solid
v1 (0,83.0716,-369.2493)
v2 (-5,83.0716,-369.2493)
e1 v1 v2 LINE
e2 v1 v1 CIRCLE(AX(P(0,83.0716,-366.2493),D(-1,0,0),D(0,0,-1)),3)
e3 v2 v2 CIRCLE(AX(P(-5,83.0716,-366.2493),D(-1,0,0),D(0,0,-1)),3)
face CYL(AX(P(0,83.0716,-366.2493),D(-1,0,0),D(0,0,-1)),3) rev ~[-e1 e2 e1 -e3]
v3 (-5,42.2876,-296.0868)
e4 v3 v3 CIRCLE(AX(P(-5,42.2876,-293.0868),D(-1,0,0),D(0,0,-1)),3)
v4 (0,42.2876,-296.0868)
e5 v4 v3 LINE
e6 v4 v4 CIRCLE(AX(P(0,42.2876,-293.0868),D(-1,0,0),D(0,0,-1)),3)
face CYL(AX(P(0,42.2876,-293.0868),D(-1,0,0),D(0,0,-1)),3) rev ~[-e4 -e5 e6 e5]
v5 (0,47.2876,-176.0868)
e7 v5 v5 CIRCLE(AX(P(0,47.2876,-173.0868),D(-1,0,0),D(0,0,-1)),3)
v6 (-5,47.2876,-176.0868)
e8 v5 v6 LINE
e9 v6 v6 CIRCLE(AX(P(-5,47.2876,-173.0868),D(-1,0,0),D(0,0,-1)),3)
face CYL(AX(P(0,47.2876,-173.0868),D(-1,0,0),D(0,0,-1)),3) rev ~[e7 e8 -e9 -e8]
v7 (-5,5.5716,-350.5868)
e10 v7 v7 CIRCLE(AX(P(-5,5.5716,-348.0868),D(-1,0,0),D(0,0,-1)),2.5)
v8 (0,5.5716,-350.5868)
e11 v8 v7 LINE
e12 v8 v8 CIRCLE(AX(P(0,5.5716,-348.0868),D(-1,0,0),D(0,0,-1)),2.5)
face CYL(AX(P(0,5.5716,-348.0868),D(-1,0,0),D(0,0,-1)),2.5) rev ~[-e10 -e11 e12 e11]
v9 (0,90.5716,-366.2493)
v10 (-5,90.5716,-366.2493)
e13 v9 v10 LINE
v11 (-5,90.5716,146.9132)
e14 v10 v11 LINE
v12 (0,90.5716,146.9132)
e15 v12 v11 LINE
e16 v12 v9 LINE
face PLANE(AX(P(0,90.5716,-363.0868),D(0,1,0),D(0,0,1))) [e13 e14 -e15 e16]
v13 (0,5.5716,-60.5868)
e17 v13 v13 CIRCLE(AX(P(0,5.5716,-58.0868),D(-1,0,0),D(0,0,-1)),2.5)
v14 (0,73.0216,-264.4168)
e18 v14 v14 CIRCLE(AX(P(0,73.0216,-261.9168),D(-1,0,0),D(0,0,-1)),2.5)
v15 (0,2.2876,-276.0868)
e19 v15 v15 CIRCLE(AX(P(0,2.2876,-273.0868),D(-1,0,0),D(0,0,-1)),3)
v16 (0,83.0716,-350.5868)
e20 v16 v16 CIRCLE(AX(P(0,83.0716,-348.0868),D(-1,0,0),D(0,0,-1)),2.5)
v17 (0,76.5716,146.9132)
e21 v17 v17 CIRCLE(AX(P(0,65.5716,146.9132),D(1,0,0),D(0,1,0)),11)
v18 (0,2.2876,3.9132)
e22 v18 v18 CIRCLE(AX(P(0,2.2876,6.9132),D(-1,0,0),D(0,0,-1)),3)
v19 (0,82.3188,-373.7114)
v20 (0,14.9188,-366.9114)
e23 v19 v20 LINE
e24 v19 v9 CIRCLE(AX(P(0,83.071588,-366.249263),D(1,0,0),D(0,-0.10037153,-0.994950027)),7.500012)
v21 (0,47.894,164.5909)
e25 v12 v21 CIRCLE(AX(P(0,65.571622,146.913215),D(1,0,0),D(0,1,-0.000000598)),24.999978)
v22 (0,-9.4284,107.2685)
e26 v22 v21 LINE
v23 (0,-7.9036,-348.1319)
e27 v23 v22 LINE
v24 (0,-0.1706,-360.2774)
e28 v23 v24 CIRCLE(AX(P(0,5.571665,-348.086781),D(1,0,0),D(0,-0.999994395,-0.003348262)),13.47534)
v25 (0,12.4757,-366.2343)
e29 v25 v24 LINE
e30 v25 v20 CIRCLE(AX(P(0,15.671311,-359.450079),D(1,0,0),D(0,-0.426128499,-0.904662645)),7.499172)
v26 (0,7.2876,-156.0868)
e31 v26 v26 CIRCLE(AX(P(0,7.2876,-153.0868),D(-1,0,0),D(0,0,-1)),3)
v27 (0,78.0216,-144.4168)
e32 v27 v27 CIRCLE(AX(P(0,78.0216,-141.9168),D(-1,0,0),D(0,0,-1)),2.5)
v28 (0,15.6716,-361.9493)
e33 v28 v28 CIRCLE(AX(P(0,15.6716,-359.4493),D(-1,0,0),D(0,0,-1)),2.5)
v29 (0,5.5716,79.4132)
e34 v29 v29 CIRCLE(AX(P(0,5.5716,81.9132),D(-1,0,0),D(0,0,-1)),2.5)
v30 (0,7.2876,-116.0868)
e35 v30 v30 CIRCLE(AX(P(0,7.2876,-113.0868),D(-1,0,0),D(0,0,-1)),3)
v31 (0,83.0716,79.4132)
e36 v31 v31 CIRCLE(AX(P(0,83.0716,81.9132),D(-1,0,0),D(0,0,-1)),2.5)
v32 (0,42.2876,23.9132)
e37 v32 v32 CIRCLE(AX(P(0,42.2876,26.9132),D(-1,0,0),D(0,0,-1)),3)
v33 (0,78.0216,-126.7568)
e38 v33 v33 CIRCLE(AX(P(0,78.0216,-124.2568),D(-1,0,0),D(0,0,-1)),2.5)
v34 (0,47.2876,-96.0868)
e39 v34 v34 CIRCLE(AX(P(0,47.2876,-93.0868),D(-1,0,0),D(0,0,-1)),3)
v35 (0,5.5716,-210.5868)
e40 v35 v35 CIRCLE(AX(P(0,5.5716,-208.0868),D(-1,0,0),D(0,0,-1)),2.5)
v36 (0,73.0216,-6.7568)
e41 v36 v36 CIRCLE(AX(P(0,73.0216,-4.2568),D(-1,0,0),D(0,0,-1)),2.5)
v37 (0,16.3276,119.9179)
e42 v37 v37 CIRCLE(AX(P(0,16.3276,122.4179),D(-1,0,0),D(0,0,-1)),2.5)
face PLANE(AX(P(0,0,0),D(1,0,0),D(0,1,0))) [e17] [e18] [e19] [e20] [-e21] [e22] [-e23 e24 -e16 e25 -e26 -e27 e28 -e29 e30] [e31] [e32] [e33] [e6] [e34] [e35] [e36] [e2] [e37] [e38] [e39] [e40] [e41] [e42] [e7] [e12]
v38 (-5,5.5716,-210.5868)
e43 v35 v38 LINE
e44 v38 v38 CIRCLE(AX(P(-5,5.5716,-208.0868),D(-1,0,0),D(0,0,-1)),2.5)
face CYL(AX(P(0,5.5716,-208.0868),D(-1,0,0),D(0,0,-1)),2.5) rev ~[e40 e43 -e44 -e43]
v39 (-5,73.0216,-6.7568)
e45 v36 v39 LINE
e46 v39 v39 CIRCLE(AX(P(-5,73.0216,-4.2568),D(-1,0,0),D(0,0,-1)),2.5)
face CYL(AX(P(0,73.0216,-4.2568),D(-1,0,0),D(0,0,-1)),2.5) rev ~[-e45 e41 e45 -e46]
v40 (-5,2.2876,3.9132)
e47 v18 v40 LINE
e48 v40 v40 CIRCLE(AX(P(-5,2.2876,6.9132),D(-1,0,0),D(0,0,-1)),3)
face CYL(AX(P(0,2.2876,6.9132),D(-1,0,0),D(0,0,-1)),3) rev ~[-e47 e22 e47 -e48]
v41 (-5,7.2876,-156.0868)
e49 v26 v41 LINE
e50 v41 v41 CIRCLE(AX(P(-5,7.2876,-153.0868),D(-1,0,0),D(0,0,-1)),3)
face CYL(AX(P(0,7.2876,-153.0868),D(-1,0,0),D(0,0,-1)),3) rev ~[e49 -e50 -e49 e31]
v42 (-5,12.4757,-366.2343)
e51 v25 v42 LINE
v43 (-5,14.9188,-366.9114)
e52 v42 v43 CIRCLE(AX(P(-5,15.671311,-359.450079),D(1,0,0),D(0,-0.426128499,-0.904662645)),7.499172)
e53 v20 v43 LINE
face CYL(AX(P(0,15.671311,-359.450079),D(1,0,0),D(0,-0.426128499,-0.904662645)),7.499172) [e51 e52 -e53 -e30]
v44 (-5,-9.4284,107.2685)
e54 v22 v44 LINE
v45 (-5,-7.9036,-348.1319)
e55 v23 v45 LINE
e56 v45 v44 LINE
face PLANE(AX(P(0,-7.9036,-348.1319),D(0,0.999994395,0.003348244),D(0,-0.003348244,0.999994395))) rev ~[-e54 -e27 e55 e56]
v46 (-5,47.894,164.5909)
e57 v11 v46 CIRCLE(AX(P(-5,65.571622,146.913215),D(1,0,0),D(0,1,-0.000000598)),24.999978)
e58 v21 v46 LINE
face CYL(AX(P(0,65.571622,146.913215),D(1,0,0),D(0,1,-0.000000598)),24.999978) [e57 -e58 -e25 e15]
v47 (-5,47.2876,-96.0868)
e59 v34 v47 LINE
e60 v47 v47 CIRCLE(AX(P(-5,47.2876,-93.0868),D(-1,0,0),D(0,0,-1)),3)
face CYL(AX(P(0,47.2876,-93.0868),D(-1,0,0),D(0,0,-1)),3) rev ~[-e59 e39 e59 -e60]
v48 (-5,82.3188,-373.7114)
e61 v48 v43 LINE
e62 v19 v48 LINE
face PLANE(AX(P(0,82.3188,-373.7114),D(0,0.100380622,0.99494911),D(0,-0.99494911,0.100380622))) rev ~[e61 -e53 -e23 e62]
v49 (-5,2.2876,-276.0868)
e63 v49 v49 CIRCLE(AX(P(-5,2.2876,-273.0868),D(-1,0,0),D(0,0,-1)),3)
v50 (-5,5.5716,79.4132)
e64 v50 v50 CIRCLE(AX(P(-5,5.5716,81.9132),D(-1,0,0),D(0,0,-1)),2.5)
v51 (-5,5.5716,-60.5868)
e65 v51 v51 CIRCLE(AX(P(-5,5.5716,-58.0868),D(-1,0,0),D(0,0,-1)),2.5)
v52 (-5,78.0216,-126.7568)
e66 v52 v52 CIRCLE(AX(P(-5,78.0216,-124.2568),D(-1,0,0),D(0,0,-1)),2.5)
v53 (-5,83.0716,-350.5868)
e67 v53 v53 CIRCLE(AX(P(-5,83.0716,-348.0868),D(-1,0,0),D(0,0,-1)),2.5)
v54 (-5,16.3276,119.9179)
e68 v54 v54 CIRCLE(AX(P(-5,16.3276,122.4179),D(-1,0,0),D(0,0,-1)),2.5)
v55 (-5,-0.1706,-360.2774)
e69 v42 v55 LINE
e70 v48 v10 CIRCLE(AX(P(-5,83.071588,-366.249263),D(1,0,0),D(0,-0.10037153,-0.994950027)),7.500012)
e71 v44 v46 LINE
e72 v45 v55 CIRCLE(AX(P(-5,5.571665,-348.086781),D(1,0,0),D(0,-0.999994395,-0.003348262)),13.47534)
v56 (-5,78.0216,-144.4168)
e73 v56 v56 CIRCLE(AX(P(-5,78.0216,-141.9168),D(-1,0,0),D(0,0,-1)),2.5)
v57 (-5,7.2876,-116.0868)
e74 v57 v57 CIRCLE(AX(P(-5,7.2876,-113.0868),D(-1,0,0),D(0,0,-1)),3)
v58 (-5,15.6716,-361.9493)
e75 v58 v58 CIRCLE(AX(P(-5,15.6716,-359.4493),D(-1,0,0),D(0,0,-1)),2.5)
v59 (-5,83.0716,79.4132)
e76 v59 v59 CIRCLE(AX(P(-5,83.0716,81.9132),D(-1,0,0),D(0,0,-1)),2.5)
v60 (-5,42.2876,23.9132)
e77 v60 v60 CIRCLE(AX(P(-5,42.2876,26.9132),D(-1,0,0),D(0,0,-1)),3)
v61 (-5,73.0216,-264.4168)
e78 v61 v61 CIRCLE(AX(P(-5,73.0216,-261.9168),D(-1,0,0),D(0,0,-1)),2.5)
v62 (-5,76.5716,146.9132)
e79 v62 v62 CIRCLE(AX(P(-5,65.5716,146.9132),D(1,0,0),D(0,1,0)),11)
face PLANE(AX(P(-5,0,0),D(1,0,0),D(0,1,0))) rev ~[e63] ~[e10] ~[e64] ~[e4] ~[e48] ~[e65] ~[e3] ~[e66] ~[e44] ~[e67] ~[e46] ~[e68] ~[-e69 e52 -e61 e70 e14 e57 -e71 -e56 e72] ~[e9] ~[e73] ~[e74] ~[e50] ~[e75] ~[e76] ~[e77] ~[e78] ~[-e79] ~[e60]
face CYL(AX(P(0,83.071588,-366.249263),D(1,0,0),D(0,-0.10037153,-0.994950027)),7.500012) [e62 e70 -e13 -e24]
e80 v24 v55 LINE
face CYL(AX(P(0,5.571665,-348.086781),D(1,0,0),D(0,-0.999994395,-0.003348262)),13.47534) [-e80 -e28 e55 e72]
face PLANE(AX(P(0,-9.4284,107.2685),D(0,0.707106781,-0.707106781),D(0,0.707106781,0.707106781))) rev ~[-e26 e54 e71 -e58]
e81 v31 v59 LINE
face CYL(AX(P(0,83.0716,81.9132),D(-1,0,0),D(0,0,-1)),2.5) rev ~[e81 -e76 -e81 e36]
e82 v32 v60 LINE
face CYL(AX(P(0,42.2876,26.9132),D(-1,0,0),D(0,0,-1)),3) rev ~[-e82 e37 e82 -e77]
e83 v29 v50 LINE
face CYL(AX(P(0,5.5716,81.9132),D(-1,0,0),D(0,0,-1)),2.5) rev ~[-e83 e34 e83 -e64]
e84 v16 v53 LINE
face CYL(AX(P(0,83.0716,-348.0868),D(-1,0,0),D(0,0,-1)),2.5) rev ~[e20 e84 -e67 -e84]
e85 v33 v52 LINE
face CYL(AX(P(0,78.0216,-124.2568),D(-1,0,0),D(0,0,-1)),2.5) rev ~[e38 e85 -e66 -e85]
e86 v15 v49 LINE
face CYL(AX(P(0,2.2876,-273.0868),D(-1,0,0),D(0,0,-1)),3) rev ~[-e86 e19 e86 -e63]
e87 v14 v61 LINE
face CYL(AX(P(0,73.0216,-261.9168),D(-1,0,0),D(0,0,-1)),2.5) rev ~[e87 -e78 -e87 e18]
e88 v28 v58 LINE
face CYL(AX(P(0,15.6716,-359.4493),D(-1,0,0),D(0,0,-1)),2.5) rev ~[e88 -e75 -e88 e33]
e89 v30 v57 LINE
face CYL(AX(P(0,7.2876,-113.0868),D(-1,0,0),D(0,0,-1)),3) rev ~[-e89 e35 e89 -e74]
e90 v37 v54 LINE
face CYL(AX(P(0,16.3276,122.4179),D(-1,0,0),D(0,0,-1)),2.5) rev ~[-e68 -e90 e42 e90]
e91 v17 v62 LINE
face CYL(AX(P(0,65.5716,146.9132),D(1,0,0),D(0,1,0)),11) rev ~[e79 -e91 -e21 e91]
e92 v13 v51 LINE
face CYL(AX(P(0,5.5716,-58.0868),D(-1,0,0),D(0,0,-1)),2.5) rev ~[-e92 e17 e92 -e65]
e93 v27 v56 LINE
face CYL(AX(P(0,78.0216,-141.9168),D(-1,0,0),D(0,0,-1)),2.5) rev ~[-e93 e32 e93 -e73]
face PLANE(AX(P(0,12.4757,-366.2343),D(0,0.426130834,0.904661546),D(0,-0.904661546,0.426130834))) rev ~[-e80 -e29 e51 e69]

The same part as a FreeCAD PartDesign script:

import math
import FreeCAD as App
import Part
import Sketcher

V = App.Vector
Q = App.Units.Quantity

doc = App.newDocument("Part")
body = doc.addObject("PartDesign::Body", "Body")

# Sketch on YZ plane
sketch1 = body.newObject("Sketcher::SketchObject", "Sketch")
sketch1.AttachmentSupport = (doc.getObject("YZ_Plane"), [""])
sketch1.MapMode = "FlatFace"
sketch1.addGeometry([
    Part.LineSegment(V(90.6, -366.2, 0), V(90.6, 146.9, 0)),  # 0
    Part.ArcOfCircle(Part.Circle(V(65.6, 146.9, 0), V(0, 0, 1), 25), math.radians(0), math.radians(135)),  # 1
    Part.LineSegment(V(47.9, 164.6, 0), V(-9.4, 107.3, 0)),  # 2
    Part.LineSegment(V(-9.4, 107.3, 0), V(-7.9, -348.1, 0)),  # 3
    Part.ArcOfCircle(Part.Circle(V(5.6, -348.1, 0), V(0, 0, 1), 13.5), math.radians(-180), math.radians(-115)),  # 4
    Part.LineSegment(V(-0.2, -360.3, 0), V(12.5, -366.2, 0)),  # 5
    Part.ArcOfCircle(Part.Circle(V(15.7, -359.4, 0), V(0, 0, 1), 7.5), math.radians(-115.22), math.radians(-95.76)),  # 6
    Part.LineSegment(V(14.9, -366.9, 0), V(82.3, -373.7, 0)),  # 7
    Part.ArcOfCircle(Part.Circle(V(83.1, -366.2, 0), V(0, 0, 1), 7.5), math.radians(-96), math.radians(0)),  # 8
    Part.Circle(V(65.6, 146.9, 0), V(0, 0, 1), 11),  # 9
], False)
sketch1.addConstraint([
    Sketcher.Constraint("Tangent", 0, 2, 1, 1),
    Sketcher.Constraint("Tangent", 1, 2, 2, 1),
    Sketcher.Constraint("Coincident", 2, 2, 3, 1),
    Sketcher.Constraint("Tangent", 3, 2, 4, 1),
    Sketcher.Constraint("Tangent", 4, 2, 5, 1),
    Sketcher.Constraint("Tangent", 5, 2, 6, 1),
    Sketcher.Constraint("Tangent", 6, 2, 7, 1),
    Sketcher.Constraint("Tangent", 7, 2, 8, 1),
    Sketcher.Constraint("Tangent", 8, 2, 0, 1),
    Sketcher.Constraint("Vertical", 0),
    Sketcher.Constraint("Coincident", 9, 3, 1, 3),
    Sketcher.Constraint("Equal", 6, 8),
    Sketcher.Constraint("Diameter", 9, Q("22 mm")),
    Sketcher.Constraint("Radius", 1, Q("25 mm")),
    Sketcher.Constraint("Radius", 6, Q("7.5 mm")),
    Sketcher.Constraint("DistanceX", 4, 3, 1, 3, Q("60 mm")),
    Sketcher.Constraint("DistanceX", 2, 2, 4, 3, Q("15 mm")),
    Sketcher.Constraint("DistanceX", 6, 3, 8, 3, Q("67.4 mm")),
    Sketcher.Constraint("DistanceY", 8, 3, 6, 3, Q("6.8 mm")),
    Sketcher.Constraint("Angle", 2, Q("-135 deg")),
    Sketcher.Constraint("DistanceY", 4, 3, 1, 3, Q("495 mm")),
    Sketcher.Constraint("Radius", 4, Q("13.4753 mm")),
    Sketcher.Constraint("Distance", 5, Q("13.979 mm")),
    Sketcher.Constraint("DistanceX", -1, 1, 1, 2, Q("47.894 mm")),
    Sketcher.Constraint("DistanceY", -1, 1, 1, 2, Q("164.591 mm")),
])
pad1 = body.newObject("PartDesign::Pad", "Pad")
pad1.Profile = sketch1
pad1.Length = 5
pad1.Reversed = True

# Sketch on YZ plane
sketch2 = body.newObject("Sketcher::SketchObject", "Sketch001")
sketch2.AttachmentSupport = (doc.getObject("YZ_Plane"), [""])
sketch2.MapMode = "FlatFace"
sketch2.addGeometry([
    Part.Circle(V(83.1, 81.9, 0), V(0, 0, 1), 2.5),  # 0
    Part.Circle(V(16.3, 122.4, 0), V(0, 0, 1), 2.5),  # 1
    Part.Circle(V(5.6, -348.1, 0), V(0, 0, 1), 2.5),  # 2
    Part.Circle(V(83.1, -348.1, 0), V(0, 0, 1), 2.5),  # 3
    Part.Circle(V(-17.7, -58.1, 0), V(0, 0, 1), 2.5),  # 4
    Part.Circle(V(-17.7, -208.1, 0), V(0, 0, 1), 2.5),  # 5
    Part.Circle(V(5.6, 81.9, 0), V(0, 0, 1), 2.5),  # 6
    Part.Circle(V(5.6, -58.1, 0), V(0, 0, 1), 2.5),  # 7
    Part.Circle(V(5.6, -208.1, 0), V(0, 0, 1), 2.5),  # 8
], False)
sketch2.addConstraint([
    Sketcher.Constraint("Equal", 0, 1),
    Sketcher.Constraint("Equal", 1, 2),
    Sketcher.Constraint("Equal", 2, 3),
    Sketcher.Constraint("Equal", 3, 4),
    Sketcher.Constraint("Equal", 4, 5),
    Sketcher.Constraint("Equal", 5, 6),
    Sketcher.Constraint("Equal", 6, 7),
    Sketcher.Constraint("Equal", 7, 8),
    Sketcher.Constraint("Horizontal", 2, 3, 3, 3),
    Sketcher.Constraint("Horizontal", 0, 3, 6, 3),
    Sketcher.Constraint("Horizontal", 4, 3, 7, 3),
    Sketcher.Constraint("Horizontal", 5, 3, 8, 3),
    Sketcher.Constraint("Vertical", 0, 3, 3, 3),
    Sketcher.Constraint("Vertical", 4, 3, 5, 3),
    Sketcher.Constraint("Vertical", 2, 3, 6, 3),
    Sketcher.Constraint("Vertical", 6, 3, 7, 3),
    Sketcher.Constraint("Vertical", 7, 3, 8, 3),
    Sketcher.Constraint("Diameter", 0, Q("5 mm")),
    Sketcher.Constraint("DistanceY", 2, 3, 0, 3, Q("430 mm")),
    Sketcher.Constraint("DistanceY", 4, 3, 0, 3, Q("140 mm")),
    Sketcher.Constraint("DistanceY", 2, 3, 5, 3, Q("140 mm")),
    Sketcher.Constraint("DistanceX", 2, 3, 0, 3, Q("77.5 mm")),
    Sketcher.Constraint("DistanceY", -1, 1, 1, 3, Q("122.418 mm")),
    Sketcher.Constraint("DistanceX", 1, 3, 0, 3, Q("66.744 mm")),
    Sketcher.Constraint("DistanceX", -1, 1, 0, 3, Q("83.0716 mm")),
    Sketcher.Constraint("DistanceY", -1, 1, 0, 3, Q("81.9132 mm")),
    Sketcher.Constraint("DistanceX", 4, 3, -1, 1, Q("17.7126 mm")),
])
doc.recompute()
hole = body.newObject("PartDesign::Hole", "Hole")
hole.Profile = sketch2
hole.ThreadType = "None"
hole.Diameter = 5
hole.DepthType = "ThroughAll"

# Sketch on YZ plane
sketch3 = body.newObject("Sketcher::SketchObject", "Sketch002")
sketch3.AttachmentSupport = (doc.getObject("YZ_Plane"), [""])
sketch3.MapMode = "FlatFace"
sketch3.addGeometry([
    Part.Circle(V(2.3, 6.9, 0), V(0, 0, 1), 3),  # 0
    Part.Circle(V(42.3, 26.9, 0), V(0, 0, 1), 3),  # 1
    Part.Circle(V(7.3, -113.1, 0), V(0, 0, 1), 3),  # 2
    Part.Circle(V(47.3, -93.1, 0), V(0, 0, 1), 3),  # 3
    Part.Circle(V(7.3, -153.1, 0), V(0, 0, 1), 3),  # 4
    Part.Circle(V(47.3, -173.1, 0), V(0, 0, 1), 3),  # 5
    Part.Circle(V(2.3, -273.1, 0), V(0, 0, 1), 3),  # 6
    Part.Circle(V(42.3, -293.1, 0), V(0, 0, 1), 3),  # 7
    Part.Circle(V(83.1, -366.2, 0), V(0, 0, 1), 3),  # 8
], False)
sketch3.addConstraint([
    Sketcher.Constraint("Equal", 0, 1),
    Sketcher.Constraint("Equal", 1, 2),
    Sketcher.Constraint("Equal", 2, 3),
    Sketcher.Constraint("Equal", 3, 4),
    Sketcher.Constraint("Equal", 4, 5),
    Sketcher.Constraint("Equal", 5, 6),
    Sketcher.Constraint("Equal", 6, 7),
    Sketcher.Constraint("Equal", 7, 8),
    Sketcher.Constraint("Vertical", 2, 3, 4, 3),
    Sketcher.Constraint("Vertical", 3, 3, 5, 3),
    Sketcher.Constraint("Vertical", 0, 3, 6, 3),
    Sketcher.Constraint("Vertical", 1, 3, 7, 3),
    Sketcher.Constraint("Diameter", 0, Q("6 mm")),
    Sketcher.Constraint("DistanceX", 0, 3, 1, 3, Q("40 mm")),
    Sketcher.Constraint("DistanceY", 0, 3, 1, 3, Q("20 mm")),
    Sketcher.Constraint("DistanceX", 0, 3, 2, 3, Q("5 mm")),
    Sketcher.Constraint("DistanceY", 2, 3, 0, 3, Q("120 mm")),
    Sketcher.Constraint("DistanceX", 2, 3, 3, 3, Q("40 mm")),
    Sketcher.Constraint("DistanceY", 2, 3, 3, 3, Q("20 mm")),
    Sketcher.Constraint("DistanceY", 4, 3, 2, 3, Q("40 mm")),
    Sketcher.Constraint("DistanceY", 5, 3, 4, 3, Q("20 mm")),
    Sketcher.Constraint("DistanceY", 6, 3, 5, 3, Q("100 mm")),
    Sketcher.Constraint("DistanceY", 7, 3, 6, 3, Q("20 mm")),
    Sketcher.Constraint("DistanceX", 7, 3, 8, 3, Q("40.784 mm")),
    Sketcher.Constraint("DistanceX", -1, 1, 0, 3, Q("2.2876 mm")),
    Sketcher.Constraint("DistanceY", -1, 1, 0, 3, Q("6.9132 mm")),
    Sketcher.Constraint("DistanceY", 8, 3, -1, 1, Q("366.2493 mm")),
])
doc.recompute()
hole2 = body.newObject("PartDesign::Hole", "Hole001")
hole2.Profile = sketch3
hole2.ThreadType = "None"
hole2.Diameter = 6
hole2.DepthType = "ThroughAll"

# Sketch on YZ plane
sketch4 = body.newObject("Sketcher::SketchObject", "Sketch003")
sketch4.AttachmentSupport = (doc.getObject("YZ_Plane"), [""])
sketch4.MapMode = "FlatFace"
sketch4.addGeometry([
    Part.Circle(V(73, -4.3, 0), V(0, 0, 1), 2.5),  # 0
    Part.Circle(V(78, -141.9, 0), V(0, 0, 1), 2.5),  # 1
    Part.Circle(V(78, -124.3, 0), V(0, 0, 1), 2.5),  # 2
    Part.Circle(V(73, -261.9, 0), V(0, 0, 1), 2.5),  # 3
    Part.Circle(V(15.7, -359.4, 0), V(0, 0, 1), 2.5),  # 4
], False)
sketch4.addConstraint([
    Sketcher.Constraint("Equal", 0, 1),
    Sketcher.Constraint("Equal", 1, 2),
    Sketcher.Constraint("Equal", 2, 3),
    Sketcher.Constraint("Equal", 3, 4),
    Sketcher.Constraint("Vertical", 1, 3, 2, 3),
    Sketcher.Constraint("Vertical", 0, 3, 3, 3),
    Sketcher.Constraint("Diameter", 0, Q("5 mm")),
    Sketcher.Constraint("DistanceX", 0, 3, 1, 3, Q("5 mm")),
    Sketcher.Constraint("DistanceY", 2, 3, 0, 3, Q("120 mm")),
    Sketcher.Constraint("DistanceY", 3, 3, 1, 3, Q("120 mm")),
    Sketcher.Constraint("DistanceY", 1, 3, 0, 3, Q("137.66 mm")),
    Sketcher.Constraint("DistanceX", 4, 3, 3, 3, Q("57.35 mm")),
    Sketcher.Constraint("DistanceX", -1, 1, 0, 3, Q("73.0216 mm")),
    Sketcher.Constraint("DistanceY", 0, 3, -1, 1, Q("4.2568 mm")),
    Sketcher.Constraint("DistanceY", 4, 3, -1, 1, Q("359.4493 mm")),
])
doc.recompute()
hole3 = body.newObject("PartDesign::Hole", "Hole002")
hole3.Profile = sketch4
hole3.ThreadType = "None"
hole3.Diameter = 5
hole3.DepthType = "ThroughAll"

doc.recompute()
